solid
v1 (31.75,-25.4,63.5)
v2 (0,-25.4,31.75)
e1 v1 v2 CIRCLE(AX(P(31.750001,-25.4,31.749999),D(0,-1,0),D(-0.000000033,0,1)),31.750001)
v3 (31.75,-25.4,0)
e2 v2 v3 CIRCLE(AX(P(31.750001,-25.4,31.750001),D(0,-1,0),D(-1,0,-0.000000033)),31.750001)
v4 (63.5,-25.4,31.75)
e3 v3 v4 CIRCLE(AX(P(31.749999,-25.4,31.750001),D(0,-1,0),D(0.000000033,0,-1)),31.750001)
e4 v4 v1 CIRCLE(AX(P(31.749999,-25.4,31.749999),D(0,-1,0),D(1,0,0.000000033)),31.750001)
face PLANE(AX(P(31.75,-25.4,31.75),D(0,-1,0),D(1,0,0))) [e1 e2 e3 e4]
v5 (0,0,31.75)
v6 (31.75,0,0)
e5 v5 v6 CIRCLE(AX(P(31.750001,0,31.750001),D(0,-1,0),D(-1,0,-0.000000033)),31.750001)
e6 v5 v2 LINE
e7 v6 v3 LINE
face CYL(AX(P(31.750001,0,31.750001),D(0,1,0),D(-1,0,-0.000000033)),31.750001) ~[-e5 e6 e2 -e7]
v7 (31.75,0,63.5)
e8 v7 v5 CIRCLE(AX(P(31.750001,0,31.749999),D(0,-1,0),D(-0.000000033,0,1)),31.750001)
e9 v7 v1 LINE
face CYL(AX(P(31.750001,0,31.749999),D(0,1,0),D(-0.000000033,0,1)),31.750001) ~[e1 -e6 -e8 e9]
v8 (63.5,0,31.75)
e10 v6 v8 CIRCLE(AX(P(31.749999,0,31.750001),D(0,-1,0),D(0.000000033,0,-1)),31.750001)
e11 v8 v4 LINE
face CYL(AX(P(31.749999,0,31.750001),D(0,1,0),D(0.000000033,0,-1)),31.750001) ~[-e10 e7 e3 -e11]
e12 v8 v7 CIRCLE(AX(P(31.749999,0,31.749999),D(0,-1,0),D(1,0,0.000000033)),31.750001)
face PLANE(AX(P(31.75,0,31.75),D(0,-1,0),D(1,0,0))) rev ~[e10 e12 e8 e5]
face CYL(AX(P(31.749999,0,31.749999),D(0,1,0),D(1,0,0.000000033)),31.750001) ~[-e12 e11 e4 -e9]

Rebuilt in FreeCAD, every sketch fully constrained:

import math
import FreeCAD as App
import Part
import Sketcher

V = App.Vector
Q = App.Units.Quantity

doc = App.newDocument("Part")
body = doc.addObject("PartDesign::Body", "Body")

# Sketch on XZ plane
sketch1 = doc.addObject("Sketcher::SketchObject", "Sketch")
body.addObject(sketch1)
sketch1.AttachmentSupport = (doc.XZ_Plane, [""])
sketch1.MapMode = "FlatFace"
sketch1.addGeometry(Part.ArcOfCircle(Part.Circle(V(32, 32, 0), V(0, 0, 1), 32), math.radians(-180), math.radians(-90)), False)
sketch1.addGeometry(Part.ArcOfCircle(Part.Circle(V(32, 32, 0), V(0, 0, 1), 32), math.radians(-90), math.radians(0)), False)
sketch1.addGeometry(Part.ArcOfCircle(Part.Circle(V(32, 32, 0), V(0, 0, 1), 32), math.radians(0), math.radians(90)), False)
sketch1.addGeometry(Part.ArcOfCircle(Part.Circle(V(32, 32, 0), V(0, 0, 1), 32), math.radians(90), math.radians(180)), False)
sketch1.addConstraint(Sketcher.Constraint("Tangent", 0, 2, 1, 1))
sketch1.addConstraint(Sketcher.Constraint("Tangent", 1, 2, 2, 1))
sketch1.addConstraint(Sketcher.Constraint("Tangent", 2, 2, 3, 1))
sketch1.addConstraint(Sketcher.Constraint("Tangent", 3, 2, 0, 1))
sketch1.addConstraint(Sketcher.Constraint("Equal", 0, 1))
sketch1.addConstraint(Sketcher.Constraint("PointOnObject", 0, 2, -1))
sketch1.addConstraint(Sketcher.Constraint("PointOnObject", 3, 2, -2))
sketch1.addConstraint(Sketcher.Constraint("Horizontal", 3, 3, 1, 2))
sketch1.addConstraint(Sketcher.Constraint("Horizontal", 1, 2, 3, 2))
sketch1.addConstraint(Sketcher.Constraint("Vertical", 3, 3, 0, 2))
sketch1.addConstraint(Sketcher.Constraint("Vertical", 0, 2, 2, 2))
sketch1.addConstraint(Sketcher.Constraint("Radius", 0, Q("1.25 in")))
pad1 = doc.addObject("PartDesign::Pad", "Pad")
body.addObject(pad1)
pad1.Profile = sketch1
pad1.Length = Q("1 in")

doc.recompute()
